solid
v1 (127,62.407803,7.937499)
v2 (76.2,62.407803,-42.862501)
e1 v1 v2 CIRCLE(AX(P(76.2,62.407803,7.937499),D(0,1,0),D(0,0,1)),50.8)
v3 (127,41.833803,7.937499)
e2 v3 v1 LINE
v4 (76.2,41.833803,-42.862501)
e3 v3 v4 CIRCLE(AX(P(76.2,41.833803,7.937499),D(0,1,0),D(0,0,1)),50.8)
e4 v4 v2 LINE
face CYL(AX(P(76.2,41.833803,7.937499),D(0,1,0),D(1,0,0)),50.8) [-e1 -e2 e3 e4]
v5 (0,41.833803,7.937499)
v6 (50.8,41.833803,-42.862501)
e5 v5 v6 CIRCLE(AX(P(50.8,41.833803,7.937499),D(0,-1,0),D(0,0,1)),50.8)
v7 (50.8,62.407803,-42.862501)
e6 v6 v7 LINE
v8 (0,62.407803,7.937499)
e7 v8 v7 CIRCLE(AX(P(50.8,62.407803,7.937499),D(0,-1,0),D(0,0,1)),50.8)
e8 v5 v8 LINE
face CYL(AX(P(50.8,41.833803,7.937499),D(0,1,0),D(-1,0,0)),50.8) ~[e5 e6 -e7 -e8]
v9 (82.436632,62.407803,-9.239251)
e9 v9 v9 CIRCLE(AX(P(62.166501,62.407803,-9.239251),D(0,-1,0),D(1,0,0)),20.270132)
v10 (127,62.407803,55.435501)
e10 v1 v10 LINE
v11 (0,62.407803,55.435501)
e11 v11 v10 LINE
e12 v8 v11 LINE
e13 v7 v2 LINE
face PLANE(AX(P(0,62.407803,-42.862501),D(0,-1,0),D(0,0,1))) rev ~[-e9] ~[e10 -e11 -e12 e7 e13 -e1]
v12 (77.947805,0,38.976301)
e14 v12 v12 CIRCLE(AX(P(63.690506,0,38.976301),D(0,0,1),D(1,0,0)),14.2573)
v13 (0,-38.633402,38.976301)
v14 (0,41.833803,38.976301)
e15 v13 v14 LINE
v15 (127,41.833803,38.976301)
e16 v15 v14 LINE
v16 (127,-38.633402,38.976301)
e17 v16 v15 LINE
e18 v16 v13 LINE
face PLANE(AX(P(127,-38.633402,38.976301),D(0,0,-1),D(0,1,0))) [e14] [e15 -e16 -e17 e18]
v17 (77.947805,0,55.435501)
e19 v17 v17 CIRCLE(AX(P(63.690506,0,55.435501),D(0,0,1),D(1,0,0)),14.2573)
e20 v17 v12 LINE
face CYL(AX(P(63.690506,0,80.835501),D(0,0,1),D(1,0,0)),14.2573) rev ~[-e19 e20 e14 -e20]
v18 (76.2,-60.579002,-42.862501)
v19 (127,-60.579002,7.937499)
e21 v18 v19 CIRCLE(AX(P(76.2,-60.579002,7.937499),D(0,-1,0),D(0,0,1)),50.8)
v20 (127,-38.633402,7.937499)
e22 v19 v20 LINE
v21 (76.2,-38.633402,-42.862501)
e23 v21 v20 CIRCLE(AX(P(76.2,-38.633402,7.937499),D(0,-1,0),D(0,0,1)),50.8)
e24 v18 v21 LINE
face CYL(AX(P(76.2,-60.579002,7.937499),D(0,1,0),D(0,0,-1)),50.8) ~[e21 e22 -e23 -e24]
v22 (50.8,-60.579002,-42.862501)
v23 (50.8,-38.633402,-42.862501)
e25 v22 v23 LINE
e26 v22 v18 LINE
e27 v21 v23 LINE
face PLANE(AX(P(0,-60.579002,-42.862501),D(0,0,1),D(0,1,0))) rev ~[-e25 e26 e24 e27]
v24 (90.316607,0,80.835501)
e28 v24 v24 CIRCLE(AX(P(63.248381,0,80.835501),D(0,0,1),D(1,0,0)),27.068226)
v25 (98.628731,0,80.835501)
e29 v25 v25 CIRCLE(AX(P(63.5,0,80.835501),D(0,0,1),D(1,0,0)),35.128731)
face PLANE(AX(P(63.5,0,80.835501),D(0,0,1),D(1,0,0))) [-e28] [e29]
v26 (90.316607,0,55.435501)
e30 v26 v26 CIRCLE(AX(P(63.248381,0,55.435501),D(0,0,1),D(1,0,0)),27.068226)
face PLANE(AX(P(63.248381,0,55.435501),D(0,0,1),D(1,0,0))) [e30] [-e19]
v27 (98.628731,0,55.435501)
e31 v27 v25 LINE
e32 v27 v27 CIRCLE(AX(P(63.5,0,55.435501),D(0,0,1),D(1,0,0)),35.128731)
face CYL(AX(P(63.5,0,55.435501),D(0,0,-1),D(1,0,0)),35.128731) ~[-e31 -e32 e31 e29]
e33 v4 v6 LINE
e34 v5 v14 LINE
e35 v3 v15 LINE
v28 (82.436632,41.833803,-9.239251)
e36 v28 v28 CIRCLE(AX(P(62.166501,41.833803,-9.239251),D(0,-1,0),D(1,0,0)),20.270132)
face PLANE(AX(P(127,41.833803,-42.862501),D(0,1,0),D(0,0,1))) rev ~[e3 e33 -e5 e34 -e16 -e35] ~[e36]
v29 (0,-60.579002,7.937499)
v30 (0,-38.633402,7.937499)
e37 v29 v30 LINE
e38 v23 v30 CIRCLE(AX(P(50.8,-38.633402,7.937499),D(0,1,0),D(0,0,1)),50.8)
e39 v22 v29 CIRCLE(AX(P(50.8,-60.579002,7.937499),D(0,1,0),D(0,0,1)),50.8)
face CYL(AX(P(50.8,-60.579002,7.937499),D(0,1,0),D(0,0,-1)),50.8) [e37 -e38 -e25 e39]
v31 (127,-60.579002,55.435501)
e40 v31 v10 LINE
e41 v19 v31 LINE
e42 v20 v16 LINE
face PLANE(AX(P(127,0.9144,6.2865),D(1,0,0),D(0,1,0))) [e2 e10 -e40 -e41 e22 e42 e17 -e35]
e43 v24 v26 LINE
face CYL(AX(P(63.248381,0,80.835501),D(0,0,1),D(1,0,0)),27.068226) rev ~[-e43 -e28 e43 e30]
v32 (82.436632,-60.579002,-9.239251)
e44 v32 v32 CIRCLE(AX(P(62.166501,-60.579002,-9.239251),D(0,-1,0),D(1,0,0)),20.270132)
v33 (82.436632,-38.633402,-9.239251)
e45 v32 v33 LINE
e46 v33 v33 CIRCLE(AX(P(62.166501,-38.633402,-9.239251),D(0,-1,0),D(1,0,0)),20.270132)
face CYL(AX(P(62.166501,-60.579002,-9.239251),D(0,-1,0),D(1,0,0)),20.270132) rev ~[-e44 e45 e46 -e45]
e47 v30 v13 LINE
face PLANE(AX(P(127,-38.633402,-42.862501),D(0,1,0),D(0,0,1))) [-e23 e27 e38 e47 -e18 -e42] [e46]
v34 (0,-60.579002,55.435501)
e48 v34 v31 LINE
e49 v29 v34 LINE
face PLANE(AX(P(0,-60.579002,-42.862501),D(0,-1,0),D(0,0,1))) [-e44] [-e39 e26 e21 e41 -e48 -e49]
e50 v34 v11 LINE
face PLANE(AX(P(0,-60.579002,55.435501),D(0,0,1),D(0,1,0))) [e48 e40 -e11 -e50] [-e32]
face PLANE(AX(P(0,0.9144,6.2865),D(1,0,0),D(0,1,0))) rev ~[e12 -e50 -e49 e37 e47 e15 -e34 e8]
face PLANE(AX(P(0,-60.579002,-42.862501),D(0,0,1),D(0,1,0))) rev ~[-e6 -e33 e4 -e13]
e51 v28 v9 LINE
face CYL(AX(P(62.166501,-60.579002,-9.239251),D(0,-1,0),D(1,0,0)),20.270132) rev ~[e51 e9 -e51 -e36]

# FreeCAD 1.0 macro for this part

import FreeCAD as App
import Part
import Sketcher

V = App.Vector
Q = App.Units.Quantity


def edges_at(feature, points):
    """Names of the edges that pass closest to the given points."""
    edges = feature.Shape.Edges
    near = lambda p: min(range(len(edges)), key=lambda i: edges[i].distToShape(Part.Vertex(*p))[0])
    return sorted({f"Edge{near(p) + 1}" for p in points})


def add_polygon(sketch, points):
    """Adds a closed chain of lines whose ends are joined by coincident constraints."""
    first, n = sketch.GeometryCount, len(points)
    for a, b in zip(points, points[1:] + points[:1]):
        sketch.addGeometry(Part.LineSegment(App.Vector(*a, 0), App.Vector(*b, 0)), False)
    for i in range(n):
        sketch.addConstraint(Sketcher.Constraint("Coincident", first + i, 2, first + (i + 1) % n, 1))

doc = App.newDocument("Part")
body = doc.addObject("PartDesign::Body", "Body")

# Sketch on YZ plane
sketch1 = body.newObject("Sketcher::SketchObject", "Sketch")
sketch1.AttachmentSupport = (doc.getObject("YZ_Plane"), [""])
sketch1.MapMode = "FlatFace"
add_polygon(sketch1, [(-61, 55), (-61, -43), (62, -43), (62, 55)])  # lines 0-3
sketch1.addConstraint([
    Sketcher.Constraint("Vertical", 0),
    Sketcher.Constraint("Horizontal", 1),
    Sketcher.Constraint("Vertical", 2),
    Sketcher.Constraint("Horizontal", 3),
    Sketcher.Constraint("DistanceY", 0, 2, 0, 1, Q("3.8700001 in")),
    Sketcher.Constraint("DistanceX", 1, 1, 1, 2, Q("4.8420002 in")),
    Sketcher.Constraint("DistanceX", 0, 2, -1, 1, Q("2.3850001 in")),
    Sketcher.Constraint("DistanceY", 0, 2, -1, 1, Q("1.6875 in")),
])
pad1 = body.newObject("PartDesign::Pad", "Pad")
pad1.Profile = sketch1
pad1.Length = Q("5 in")

# Sketch on YZ plane
sketch2 = body.newObject("Sketcher::SketchObject", "Sketch001")
sketch2.AttachmentSupport = (doc.getObject("YZ_Plane"), [""])
sketch2.MapMode = "FlatFace"
sketch2.AttachmentOffset = App.Placement(V(0, 0, 5 * 25.4), App.Rotation())
add_polygon(sketch2, [(-39, 39), (-39, -43), (42, -43), (42, 39)])  # lines 0-3
sketch2.addConstraint([
    Sketcher.Constraint("Vertical", 0),
    Sketcher.Constraint("Horizontal", 1),
    Sketcher.Constraint("Vertical", 2),
    Sketcher.Constraint("Horizontal", 3),
    Sketcher.Constraint("DistanceY", 0, 2, 0, 1, Q("3.2220001 in")),
    Sketcher.Constraint("DistanceX", 0, 2, -1, 1, Q("1.5210001 in")),
    Sketcher.Constraint("DistanceY", 0, 2, -1, 1, Q("1.6875 in")),
    Sketcher.Constraint("DistanceX", -1, 1, 1, 2, Q("1.6470001 in")),
])
pocket1 = body.newObject("PartDesign::Pocket", "Pocket")
pocket1.Profile = sketch2
pocket1.Length = Q("5 in")
doc.recompute()

fillet = body.newObject("PartDesign::Fillet", "Fillet")
fillet.Base = (pocket1, edges_at(pocket1, [
    (127, -49.606, -42.863),
    (0, -49.606, -42.863),
    (0, 52.121, -42.863),
    (127, 52.121, -42.863),
]))
fillet.Radius = Q("2 in")

# Sketch on XZ plane
sketch3 = body.newObject("Sketcher::SketchObject", "Sketch002")
sketch3.AttachmentSupport = (doc.getObject("XZ_Plane"), [""])
sketch3.MapMode = "FlatFace"
sketch3.AttachmentOffset = App.Placement(V(0, 0, 2.3850001 * 25.4), App.Rotation())
sketch3.addGeometry(Part.Circle(V(62, -9, 0), V(0, 0, 1), 20), False)
sketch3.addConstraint([
    Sketcher.Constraint("Diameter", 0, 40.540263),
    Sketcher.Constraint("DistanceX", -1, 1, 0, 3, Q("2.4475 in")),
    Sketcher.Constraint("DistanceY", 0, 3, -1, 1, 9.239251),
])
pocket2 = body.newObject("PartDesign::Pocket", "Pocket001")
pocket2.Profile = sketch3
pocket2.Length = Q("10 in")

# Sketch on XY plane
sketch4 = body.newObject("Sketcher::SketchObject", "Sketch003")
sketch4.AttachmentSupport = (doc.getObject("XY_Plane"), [""])
sketch4.MapMode = "FlatFace"
sketch4.AttachmentOffset = App.Placement(V(0, 0, 2.1825 * 25.4), App.Rotation())
sketch4.addGeometry(Part.Circle(V(64, 0, 0), V(0, 0, 1), 35), False)
sketch4.addConstraint([
    Sketcher.Constraint("PointOnObject", 0, 3, -1),
    Sketcher.Constraint("DistanceX", -1, 1, 0, 3, Q("2.5 in")),
    Sketcher.Constraint("Diameter", 0, 70.257463),
])
pad2 = body.newObject("PartDesign::Pad", "Pad001")
pad2.Profile = sketch4
pad2.Length = Q("1 in")

# Sketch on XY plane
sketch5 = body.newObject("Sketcher::SketchObject", "Sketch004")
sketch5.AttachmentSupport = (doc.getObject("XY_Plane"), [""])
sketch5.MapMode = "FlatFace"
sketch5.AttachmentOffset = App.Placement(V(0, 0, 3.1825 * 25.4), App.Rotation())
sketch5.addGeometry(Part.Circle(V(63, 0, 0), V(0, 0, 1), 27), False)
sketch5.addConstraint([
    Sketcher.Constraint("PointOnObject", 0, 3, -1),
    Sketcher.Constraint("Diameter", 0, 54.136453),
    Sketcher.Constraint("DistanceX", -1, 1, 0, 3, 63.248381),
])
pocket3 = body.newObject("PartDesign::Pocket", "Pocket002")
pocket3.Profile = sketch5
pocket3.Length = Q("1 in")

# Sketch on XY plane
sketch6 = body.newObject("Sketcher::SketchObject", "Sketch005")
sketch6.AttachmentSupport = (doc.getObject("XY_Plane"), [""])
sketch6.MapMode = "FlatFace"
sketch6.AttachmentOffset = App.Placement(V(0, 0, 3.1825 * 25.4), App.Rotation())
sketch6.addGeometry(Part.Circle(V(64, 0, 0), V(0, 0, 1), 14), False)
sketch6.addConstraint([
    Sketcher.Constraint("PointOnObject", 0, 3, -1),
    Sketcher.Constraint("Diameter", 0, 28.514599),
    Sketcher.Constraint("DistanceX", -1, 1, 0, 3, 63.690506),
])
pocket4 = body.newObject("PartDesign::Pocket", "Pocket003")
pocket4.Profile = sketch6
pocket4.Length = Q("2 in")

doc.recompute()
